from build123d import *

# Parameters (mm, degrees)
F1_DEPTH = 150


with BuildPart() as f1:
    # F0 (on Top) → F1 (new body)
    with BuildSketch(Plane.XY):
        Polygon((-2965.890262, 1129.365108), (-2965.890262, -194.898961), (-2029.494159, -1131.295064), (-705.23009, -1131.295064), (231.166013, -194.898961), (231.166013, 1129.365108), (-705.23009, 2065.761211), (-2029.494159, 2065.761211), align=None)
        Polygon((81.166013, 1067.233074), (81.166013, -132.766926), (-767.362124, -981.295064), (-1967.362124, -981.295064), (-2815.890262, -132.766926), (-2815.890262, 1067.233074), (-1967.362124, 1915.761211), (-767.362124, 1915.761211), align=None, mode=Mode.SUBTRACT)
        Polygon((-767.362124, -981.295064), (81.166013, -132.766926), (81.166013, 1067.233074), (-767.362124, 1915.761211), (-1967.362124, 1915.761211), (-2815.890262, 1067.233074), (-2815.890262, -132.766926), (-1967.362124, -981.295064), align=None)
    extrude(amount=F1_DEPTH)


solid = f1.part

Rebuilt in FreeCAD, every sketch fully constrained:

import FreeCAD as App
import Part
import Sketcher
from FreeCAD import Vector

doc = App.newDocument("Part")
body = doc.addObject("PartDesign::Body", "Body")

sketch1 = doc.addObject("Sketcher::SketchObject", "Sketch")
body.addObject(sketch1)
sketch1.AttachmentSupport = (doc.XY_Plane, [""])
sketch1.MapMode = "FlatFace"
sketch1.addGeometry([
    Part.LineSegment(Vector(-2966, 1129, 0), Vector(-2966, -195, 0)),
    Part.LineSegment(Vector(-2966, -195, 0), Vector(-2029, -1131, 0)),
    Part.LineSegment(Vector(-2029, -1131, 0), Vector(-705, -1131, 0)),
    Part.LineSegment(Vector(-705, -1131, 0), Vector(231, -195, 0)),
    Part.LineSegment(Vector(231, -195, 0), Vector(231, 1129, 0)),
    Part.LineSegment(Vector(231, 1129, 0), Vector(-705, 2066, 0)),
    Part.LineSegment(Vector(-705, 2066, 0), Vector(-2029, 2066, 0)),
    Part.LineSegment(Vector(-2029, 2066, 0), Vector(-2966, 1129, 0)),
], False)
sketch1.addConstraint([
    Sketcher.Constraint("Coincident", 0, 2, 1, 1),
    Sketcher.Constraint("Coincident", 1, 2, 2, 1),
    Sketcher.Constraint("Coincident", 2, 2, 3, 1),
    Sketcher.Constraint("Coincident", 3, 2, 4, 1),
    Sketcher.Constraint("Coincident", 4, 2, 5, 1),
    Sketcher.Constraint("Coincident", 5, 2, 6, 1),
    Sketcher.Constraint("Coincident", 6, 2, 7, 1),
    Sketcher.Constraint("Coincident", 7, 2, 0, 1),
    Sketcher.Constraint("Vertical", 0),
    Sketcher.Constraint("Horizontal", 2),
    Sketcher.Constraint("Vertical", 4),
    Sketcher.Constraint("Horizontal", 6),
    Sketcher.Constraint("Perpendicular", 1, 3),
    Sketcher.Constraint("Perpendicular", 3, 5),
    Sketcher.Constraint("Perpendicular", 5, 7),
    Sketcher.Constraint("Horizontal", 0, 2, 3, 2),
    Sketcher.Constraint("Horizontal", 4, 2, 7, 2),
    Sketcher.Constraint("Vertical", 2, 2, 5, 2),
    Sketcher.Constraint("Vertical", 1, 2, 6, 2),
    Sketcher.Constraint("Equal", 6, 0),
    Sketcher.Constraint("DistanceX", 2, 1, 2, 2, 1324.264069),
    Sketcher.Constraint("Distance", 1, 1324.264069),
    Sketcher.Constraint("DistanceX", 0, 2, -1, 1, 2965.890262),
    Sketcher.Constraint("DistanceY", 0, 2, -1, 1, 194.898961),
])
pad1 = doc.addObject("PartDesign::Pad", "Pad")
body.addObject(pad1)
pad1.Profile = sketch1
pad1.Length = 150

doc.recompute()
